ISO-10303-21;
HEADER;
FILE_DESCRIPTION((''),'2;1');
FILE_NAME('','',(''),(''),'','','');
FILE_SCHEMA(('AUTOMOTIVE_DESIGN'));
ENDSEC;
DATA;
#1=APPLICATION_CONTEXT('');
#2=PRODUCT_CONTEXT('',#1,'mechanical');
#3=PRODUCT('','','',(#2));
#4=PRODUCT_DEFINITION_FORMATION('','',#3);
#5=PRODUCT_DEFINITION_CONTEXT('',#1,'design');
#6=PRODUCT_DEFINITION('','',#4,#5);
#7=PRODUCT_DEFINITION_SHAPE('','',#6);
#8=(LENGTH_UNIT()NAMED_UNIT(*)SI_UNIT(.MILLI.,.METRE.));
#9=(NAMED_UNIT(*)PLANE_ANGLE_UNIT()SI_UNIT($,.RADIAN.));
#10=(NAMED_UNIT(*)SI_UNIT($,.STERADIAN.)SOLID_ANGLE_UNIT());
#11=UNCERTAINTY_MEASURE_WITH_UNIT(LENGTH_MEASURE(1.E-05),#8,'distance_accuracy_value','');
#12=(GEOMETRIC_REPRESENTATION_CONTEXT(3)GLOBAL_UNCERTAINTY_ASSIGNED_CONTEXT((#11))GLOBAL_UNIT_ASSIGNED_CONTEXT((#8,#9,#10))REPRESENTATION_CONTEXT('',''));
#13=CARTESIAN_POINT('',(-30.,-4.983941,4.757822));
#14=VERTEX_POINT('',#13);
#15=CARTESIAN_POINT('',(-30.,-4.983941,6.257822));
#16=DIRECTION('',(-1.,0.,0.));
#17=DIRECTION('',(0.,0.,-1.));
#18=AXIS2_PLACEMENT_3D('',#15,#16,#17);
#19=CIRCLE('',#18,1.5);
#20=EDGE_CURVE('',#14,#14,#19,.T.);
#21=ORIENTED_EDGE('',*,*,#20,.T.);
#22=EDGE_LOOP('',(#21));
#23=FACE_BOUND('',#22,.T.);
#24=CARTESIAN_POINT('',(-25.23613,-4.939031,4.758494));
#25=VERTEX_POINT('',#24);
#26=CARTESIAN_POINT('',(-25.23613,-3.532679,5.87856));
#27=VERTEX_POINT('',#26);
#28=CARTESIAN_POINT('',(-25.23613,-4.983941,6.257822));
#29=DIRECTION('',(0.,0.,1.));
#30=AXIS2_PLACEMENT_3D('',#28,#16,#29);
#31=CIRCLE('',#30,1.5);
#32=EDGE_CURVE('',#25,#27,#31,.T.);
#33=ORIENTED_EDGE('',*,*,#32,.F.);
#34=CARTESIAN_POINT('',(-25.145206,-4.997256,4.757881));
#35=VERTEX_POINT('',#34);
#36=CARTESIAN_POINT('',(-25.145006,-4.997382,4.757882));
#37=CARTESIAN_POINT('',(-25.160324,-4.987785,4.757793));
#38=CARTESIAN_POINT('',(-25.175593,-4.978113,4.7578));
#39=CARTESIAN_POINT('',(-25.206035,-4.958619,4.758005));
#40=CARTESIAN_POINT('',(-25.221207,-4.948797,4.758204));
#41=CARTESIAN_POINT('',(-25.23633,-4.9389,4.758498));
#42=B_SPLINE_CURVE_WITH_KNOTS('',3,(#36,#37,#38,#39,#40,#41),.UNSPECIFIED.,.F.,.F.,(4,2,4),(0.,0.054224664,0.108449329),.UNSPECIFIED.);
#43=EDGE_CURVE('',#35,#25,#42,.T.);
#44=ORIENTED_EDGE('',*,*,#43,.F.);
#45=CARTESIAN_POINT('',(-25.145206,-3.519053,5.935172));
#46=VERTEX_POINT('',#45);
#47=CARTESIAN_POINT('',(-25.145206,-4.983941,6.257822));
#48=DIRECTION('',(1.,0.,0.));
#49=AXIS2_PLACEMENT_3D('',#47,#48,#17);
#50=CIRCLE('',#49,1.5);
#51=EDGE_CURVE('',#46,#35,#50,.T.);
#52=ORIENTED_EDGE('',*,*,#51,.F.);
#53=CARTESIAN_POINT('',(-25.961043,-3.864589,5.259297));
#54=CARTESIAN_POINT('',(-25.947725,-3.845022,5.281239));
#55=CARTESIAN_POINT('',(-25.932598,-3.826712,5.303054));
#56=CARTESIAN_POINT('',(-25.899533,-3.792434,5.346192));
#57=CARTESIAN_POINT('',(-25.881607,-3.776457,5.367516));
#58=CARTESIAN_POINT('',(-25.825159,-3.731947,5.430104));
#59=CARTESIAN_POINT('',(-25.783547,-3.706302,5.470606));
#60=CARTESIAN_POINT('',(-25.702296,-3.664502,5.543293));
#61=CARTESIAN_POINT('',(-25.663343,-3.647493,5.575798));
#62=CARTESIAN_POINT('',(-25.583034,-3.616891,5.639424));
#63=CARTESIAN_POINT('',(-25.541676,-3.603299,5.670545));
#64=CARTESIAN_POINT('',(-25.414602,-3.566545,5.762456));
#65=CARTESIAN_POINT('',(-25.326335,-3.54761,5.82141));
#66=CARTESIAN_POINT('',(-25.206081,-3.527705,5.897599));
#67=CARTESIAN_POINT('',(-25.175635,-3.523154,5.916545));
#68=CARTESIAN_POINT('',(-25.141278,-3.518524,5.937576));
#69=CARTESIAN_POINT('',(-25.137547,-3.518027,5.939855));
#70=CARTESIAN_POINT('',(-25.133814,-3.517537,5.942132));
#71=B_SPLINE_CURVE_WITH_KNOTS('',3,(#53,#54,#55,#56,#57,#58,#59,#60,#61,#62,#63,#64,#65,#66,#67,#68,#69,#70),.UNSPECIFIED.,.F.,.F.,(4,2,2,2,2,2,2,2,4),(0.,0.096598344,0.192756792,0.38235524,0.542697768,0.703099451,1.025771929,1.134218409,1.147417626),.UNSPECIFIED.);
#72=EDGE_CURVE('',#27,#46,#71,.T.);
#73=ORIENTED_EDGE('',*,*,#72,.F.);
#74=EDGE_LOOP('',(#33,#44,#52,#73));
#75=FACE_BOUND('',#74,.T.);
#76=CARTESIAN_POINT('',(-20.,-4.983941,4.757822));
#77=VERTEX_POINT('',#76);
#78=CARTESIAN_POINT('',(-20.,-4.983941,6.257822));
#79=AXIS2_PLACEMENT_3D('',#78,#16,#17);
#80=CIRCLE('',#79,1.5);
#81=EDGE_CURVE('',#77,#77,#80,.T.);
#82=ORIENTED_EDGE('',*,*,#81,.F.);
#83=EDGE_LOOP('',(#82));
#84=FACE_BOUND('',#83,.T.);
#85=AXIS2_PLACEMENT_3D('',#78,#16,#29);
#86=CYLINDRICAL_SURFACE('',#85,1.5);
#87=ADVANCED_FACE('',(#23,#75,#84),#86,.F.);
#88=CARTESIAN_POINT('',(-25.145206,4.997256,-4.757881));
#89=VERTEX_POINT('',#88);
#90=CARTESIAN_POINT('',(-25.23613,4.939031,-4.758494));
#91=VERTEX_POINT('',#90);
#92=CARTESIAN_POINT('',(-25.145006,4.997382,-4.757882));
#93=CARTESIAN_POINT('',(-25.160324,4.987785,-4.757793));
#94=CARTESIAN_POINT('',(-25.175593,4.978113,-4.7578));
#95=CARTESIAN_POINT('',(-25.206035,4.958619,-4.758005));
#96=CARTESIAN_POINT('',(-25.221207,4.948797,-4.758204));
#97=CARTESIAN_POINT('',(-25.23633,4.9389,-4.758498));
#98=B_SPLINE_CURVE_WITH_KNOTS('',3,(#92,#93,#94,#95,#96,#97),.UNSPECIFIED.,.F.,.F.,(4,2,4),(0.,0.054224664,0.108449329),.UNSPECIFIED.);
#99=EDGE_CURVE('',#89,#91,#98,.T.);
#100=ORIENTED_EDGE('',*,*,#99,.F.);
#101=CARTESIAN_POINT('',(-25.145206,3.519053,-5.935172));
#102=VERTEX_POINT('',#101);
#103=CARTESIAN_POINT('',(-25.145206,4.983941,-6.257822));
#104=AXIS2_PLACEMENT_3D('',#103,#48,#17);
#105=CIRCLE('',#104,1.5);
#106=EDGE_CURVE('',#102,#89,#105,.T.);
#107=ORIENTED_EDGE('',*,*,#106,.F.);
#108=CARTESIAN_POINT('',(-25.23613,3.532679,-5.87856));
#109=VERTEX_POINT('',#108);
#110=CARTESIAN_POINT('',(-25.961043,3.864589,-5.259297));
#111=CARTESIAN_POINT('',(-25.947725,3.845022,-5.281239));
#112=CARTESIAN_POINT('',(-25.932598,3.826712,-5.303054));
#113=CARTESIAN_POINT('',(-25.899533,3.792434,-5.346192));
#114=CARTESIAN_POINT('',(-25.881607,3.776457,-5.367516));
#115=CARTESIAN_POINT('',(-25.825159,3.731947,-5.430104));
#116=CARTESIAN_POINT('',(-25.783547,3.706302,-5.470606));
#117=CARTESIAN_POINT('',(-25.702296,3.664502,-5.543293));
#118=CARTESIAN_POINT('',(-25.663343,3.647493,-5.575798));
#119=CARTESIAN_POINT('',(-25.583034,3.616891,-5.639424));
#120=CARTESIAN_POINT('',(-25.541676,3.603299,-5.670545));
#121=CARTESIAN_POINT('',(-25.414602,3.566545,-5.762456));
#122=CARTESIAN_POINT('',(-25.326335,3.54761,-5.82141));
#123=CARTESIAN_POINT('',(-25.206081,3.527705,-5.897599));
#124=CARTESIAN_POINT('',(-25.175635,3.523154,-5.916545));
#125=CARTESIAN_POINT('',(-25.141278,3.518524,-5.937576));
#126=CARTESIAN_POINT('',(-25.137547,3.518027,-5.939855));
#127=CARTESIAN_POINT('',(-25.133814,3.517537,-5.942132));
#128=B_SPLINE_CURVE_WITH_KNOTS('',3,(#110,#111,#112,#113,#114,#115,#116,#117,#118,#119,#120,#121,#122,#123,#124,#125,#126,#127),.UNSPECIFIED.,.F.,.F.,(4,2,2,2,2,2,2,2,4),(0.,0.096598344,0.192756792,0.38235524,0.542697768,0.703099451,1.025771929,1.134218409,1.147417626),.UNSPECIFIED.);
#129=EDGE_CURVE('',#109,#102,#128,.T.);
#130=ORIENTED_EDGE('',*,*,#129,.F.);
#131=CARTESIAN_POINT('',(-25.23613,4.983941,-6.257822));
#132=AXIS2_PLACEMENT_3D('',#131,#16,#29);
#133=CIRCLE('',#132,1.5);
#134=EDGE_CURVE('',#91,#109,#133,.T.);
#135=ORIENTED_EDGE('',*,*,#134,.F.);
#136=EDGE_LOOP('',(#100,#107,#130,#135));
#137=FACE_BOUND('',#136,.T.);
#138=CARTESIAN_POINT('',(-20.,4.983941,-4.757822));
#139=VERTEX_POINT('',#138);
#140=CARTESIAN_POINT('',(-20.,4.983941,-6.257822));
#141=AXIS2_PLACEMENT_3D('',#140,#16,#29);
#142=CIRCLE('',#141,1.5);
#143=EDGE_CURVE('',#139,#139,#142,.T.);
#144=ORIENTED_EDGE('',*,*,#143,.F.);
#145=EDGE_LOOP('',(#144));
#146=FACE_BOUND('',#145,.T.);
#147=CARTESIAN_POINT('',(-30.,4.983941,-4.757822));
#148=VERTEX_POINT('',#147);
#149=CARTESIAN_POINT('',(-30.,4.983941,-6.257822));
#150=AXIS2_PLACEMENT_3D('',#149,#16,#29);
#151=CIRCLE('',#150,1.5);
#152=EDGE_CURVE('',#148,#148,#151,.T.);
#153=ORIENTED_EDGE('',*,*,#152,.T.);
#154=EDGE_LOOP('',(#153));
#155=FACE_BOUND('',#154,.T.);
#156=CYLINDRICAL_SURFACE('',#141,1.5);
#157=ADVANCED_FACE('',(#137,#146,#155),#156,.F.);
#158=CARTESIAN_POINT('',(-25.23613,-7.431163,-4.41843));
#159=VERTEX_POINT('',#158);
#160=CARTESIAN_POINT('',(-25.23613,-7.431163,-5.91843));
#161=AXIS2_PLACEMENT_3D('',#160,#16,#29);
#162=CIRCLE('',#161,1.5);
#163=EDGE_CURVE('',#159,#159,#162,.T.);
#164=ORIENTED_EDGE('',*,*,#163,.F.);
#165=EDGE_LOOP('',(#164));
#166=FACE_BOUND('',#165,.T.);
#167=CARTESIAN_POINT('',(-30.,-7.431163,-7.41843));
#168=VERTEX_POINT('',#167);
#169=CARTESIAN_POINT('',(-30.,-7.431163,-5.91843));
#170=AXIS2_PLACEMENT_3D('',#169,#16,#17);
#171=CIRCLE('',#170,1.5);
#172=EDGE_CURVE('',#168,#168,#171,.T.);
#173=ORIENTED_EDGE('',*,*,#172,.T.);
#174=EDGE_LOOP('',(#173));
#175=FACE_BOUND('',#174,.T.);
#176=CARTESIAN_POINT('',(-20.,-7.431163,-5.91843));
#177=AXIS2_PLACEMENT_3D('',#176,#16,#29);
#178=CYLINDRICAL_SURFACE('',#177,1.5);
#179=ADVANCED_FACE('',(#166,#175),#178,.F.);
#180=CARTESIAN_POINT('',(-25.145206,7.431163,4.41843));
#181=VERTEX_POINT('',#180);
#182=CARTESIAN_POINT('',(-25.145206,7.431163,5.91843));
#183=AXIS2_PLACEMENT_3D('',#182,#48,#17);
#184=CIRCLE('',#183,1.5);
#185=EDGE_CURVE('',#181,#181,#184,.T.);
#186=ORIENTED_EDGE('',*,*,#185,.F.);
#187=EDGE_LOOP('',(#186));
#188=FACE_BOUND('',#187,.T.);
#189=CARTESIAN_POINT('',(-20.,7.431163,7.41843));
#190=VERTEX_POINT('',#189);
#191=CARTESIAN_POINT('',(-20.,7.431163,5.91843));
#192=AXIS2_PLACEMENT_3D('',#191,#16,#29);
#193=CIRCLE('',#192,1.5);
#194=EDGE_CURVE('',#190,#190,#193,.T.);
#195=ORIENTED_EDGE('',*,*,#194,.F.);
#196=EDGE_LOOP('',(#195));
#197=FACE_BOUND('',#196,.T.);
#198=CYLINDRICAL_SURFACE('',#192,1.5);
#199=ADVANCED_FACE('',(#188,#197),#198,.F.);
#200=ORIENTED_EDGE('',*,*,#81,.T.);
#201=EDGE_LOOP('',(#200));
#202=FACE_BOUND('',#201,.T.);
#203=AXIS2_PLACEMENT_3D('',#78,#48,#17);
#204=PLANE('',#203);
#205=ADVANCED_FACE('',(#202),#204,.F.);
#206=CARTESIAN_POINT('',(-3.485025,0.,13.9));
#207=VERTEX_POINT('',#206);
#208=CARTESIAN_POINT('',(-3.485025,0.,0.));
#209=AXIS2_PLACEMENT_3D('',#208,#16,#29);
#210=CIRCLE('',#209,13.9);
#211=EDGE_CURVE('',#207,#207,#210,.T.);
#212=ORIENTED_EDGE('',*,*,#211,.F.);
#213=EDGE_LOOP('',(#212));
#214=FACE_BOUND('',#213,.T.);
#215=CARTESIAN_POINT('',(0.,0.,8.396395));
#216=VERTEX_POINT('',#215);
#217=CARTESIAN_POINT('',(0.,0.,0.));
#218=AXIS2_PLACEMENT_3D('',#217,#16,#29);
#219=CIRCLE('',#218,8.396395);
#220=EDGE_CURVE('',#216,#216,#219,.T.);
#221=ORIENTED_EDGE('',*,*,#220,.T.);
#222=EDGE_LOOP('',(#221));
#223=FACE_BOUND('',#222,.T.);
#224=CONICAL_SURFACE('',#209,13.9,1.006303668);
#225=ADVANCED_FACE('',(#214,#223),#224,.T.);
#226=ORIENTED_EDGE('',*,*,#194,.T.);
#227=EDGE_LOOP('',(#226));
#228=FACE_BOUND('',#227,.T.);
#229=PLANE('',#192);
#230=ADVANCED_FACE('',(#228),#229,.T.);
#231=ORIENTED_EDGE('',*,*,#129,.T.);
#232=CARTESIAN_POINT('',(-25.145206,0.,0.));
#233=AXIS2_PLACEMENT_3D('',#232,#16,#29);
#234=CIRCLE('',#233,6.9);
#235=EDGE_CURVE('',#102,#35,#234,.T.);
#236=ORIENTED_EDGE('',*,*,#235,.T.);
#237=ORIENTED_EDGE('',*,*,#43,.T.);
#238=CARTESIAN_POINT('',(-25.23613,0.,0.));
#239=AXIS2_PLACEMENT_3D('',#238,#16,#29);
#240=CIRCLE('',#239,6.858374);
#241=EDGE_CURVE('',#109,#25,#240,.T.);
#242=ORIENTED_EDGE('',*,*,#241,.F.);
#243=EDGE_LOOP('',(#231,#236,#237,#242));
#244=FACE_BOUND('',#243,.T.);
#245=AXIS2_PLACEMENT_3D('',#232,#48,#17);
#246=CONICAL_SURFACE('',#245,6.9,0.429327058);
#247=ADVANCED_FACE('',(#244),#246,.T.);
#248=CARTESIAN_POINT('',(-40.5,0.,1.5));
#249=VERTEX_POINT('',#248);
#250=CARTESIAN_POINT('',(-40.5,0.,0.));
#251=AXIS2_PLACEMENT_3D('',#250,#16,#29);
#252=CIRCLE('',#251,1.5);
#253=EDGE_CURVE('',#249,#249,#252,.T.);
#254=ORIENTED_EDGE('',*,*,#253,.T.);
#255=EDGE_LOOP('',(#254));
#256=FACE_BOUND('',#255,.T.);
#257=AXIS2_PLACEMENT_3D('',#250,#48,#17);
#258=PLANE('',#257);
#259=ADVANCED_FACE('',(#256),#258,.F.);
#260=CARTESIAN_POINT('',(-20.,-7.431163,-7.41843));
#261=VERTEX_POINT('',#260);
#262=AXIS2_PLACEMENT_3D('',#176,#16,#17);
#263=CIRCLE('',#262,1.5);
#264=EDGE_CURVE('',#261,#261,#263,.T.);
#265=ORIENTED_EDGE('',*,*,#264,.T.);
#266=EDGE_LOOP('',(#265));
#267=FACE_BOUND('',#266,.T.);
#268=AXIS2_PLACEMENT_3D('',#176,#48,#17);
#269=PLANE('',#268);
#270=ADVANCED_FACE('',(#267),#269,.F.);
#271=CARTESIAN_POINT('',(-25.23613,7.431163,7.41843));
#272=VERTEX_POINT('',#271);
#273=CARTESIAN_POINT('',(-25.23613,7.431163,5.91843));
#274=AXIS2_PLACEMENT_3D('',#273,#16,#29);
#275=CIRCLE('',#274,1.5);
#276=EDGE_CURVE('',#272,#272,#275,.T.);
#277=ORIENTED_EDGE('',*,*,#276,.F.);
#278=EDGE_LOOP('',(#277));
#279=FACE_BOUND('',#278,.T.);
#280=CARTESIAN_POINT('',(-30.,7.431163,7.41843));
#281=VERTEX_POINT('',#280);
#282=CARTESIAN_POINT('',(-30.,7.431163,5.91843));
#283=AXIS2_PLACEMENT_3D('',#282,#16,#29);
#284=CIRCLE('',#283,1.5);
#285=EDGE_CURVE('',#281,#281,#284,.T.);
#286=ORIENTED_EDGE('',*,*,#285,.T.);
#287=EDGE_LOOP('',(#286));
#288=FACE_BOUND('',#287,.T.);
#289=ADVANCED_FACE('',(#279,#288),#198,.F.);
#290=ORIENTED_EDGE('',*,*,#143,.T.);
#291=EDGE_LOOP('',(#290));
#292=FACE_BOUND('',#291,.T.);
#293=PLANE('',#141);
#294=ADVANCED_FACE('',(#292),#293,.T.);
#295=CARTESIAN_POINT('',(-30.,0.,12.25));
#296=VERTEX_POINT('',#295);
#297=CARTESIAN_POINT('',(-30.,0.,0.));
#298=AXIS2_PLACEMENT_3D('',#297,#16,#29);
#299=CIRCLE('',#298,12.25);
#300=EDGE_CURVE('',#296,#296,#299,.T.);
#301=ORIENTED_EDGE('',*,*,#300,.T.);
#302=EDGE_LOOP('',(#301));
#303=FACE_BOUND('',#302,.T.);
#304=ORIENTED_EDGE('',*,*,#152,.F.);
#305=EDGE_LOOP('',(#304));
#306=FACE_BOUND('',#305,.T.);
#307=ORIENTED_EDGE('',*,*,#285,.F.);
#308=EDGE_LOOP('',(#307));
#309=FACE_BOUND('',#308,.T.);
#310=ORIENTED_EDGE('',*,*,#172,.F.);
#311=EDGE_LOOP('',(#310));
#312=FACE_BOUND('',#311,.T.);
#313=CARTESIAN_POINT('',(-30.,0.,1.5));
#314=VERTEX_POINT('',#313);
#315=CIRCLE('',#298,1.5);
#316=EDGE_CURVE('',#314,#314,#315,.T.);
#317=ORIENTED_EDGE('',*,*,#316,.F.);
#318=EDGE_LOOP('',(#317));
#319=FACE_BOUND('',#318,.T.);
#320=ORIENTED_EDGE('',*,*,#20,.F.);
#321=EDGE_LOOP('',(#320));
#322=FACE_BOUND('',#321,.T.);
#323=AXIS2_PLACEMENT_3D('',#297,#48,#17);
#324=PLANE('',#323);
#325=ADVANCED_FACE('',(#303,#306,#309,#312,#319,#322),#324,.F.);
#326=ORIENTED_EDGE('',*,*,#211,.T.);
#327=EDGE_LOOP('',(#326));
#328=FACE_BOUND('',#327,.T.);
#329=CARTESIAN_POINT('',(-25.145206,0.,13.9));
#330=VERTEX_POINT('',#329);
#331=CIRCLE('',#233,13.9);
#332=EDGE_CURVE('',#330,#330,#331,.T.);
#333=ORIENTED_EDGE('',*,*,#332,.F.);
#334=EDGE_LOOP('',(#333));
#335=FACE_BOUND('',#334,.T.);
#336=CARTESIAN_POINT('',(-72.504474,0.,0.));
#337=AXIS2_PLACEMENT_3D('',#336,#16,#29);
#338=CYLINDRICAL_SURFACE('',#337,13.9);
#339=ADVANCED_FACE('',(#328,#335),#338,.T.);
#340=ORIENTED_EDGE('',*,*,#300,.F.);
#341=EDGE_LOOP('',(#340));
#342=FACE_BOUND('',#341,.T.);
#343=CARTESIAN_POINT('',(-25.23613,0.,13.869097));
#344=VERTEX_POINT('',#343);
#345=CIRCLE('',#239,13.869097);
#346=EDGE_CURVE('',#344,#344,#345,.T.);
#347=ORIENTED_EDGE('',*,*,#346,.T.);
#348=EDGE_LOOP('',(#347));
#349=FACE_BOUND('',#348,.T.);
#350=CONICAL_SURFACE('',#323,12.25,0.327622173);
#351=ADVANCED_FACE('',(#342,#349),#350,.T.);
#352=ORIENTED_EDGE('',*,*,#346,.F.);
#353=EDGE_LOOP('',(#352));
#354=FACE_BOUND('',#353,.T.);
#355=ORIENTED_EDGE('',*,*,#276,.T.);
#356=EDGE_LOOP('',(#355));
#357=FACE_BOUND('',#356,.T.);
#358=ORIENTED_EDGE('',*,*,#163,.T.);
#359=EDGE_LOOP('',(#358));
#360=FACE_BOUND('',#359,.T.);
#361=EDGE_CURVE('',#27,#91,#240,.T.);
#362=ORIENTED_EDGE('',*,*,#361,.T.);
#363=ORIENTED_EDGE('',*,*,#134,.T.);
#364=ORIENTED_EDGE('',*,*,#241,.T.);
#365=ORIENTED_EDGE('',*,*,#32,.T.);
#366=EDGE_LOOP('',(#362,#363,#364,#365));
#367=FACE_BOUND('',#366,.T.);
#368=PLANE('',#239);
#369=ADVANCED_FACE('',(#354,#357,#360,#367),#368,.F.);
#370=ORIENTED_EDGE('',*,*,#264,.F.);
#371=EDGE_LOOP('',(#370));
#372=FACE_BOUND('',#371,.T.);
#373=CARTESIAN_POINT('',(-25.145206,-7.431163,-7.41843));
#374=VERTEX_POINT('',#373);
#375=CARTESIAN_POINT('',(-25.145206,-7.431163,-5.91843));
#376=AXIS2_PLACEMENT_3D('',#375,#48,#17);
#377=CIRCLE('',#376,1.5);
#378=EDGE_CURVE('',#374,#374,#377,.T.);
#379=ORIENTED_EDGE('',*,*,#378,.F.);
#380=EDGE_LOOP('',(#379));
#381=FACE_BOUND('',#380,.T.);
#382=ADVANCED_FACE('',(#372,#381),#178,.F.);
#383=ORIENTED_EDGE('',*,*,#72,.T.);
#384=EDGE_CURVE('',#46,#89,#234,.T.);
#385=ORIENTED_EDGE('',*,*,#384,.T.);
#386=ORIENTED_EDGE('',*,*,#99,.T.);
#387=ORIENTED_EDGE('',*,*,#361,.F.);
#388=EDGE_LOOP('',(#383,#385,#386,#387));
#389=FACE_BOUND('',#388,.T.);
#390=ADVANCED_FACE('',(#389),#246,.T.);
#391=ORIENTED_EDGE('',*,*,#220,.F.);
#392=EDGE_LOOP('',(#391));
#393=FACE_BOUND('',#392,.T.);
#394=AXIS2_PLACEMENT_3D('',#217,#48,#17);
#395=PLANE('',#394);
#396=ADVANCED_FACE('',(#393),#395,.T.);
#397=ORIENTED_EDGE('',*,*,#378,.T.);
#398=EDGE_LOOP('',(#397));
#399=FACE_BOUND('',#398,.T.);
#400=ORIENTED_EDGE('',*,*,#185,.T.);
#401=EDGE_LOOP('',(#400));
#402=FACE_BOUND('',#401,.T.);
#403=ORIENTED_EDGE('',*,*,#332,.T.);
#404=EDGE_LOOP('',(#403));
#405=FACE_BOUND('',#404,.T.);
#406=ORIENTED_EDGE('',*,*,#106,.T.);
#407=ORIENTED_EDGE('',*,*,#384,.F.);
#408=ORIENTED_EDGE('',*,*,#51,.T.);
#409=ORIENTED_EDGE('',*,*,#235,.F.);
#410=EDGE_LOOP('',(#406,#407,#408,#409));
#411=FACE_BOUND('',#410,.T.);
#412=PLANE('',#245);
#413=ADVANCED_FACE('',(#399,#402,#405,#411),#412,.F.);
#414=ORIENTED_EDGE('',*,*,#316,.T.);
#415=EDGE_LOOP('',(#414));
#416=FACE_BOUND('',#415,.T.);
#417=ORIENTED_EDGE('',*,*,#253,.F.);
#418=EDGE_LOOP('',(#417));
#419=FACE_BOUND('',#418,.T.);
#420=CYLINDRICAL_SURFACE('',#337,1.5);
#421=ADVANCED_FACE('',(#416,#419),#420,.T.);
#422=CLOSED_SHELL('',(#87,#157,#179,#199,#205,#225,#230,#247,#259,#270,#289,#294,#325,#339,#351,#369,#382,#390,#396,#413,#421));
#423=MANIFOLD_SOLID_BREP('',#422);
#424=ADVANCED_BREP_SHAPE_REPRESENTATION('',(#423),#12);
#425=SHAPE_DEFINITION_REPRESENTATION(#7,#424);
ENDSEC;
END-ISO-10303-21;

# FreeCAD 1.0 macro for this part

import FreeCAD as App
import Part
import Sketcher
from FreeCAD import Vector


def add_polygon(sketch, points):
    """Adds a closed chain of lines whose ends are joined by coincident constraints."""
    first, n = sketch.GeometryCount, len(points)
    for a, b in zip(points, points[1:] + points[:1]):
        sketch.addGeometry(Part.LineSegment(App.Vector(*a, 0), App.Vector(*b, 0)), False)
    for i in range(n):
        sketch.addConstraint(Sketcher.Constraint("Coincident", first + i, 2, first + (i + 1) % n, 1))

doc = App.newDocument("Part")
body = doc.addObject("PartDesign::Body", "Body")

sketch1 = body.newObject("Sketcher::SketchObject", "Sketch")
sketch1.AttachmentSupport = (doc.getObject("XY_Plane"), [""])
sketch1.MapMode = "FlatFace"
add_polygon(sketch1, [(-25.24, 13.87), (-30, 12.25), (-30, 1.5), (-40.5, 1.5), (-40.5, 0), (0, 0), (0, 8.4), (-3.49, 13.9), (-25.15, 13.9), (-25.15, 6.9), (-25.24, 6.86)])
sketch1.addConstraint([
    Sketcher.Constraint("Vertical", 1),
    Sketcher.Constraint("Horizontal", 2),
    Sketcher.Constraint("Vertical", 3),
    Sketcher.Constraint("Horizontal", 4),
    Sketcher.Constraint("Vertical", 5),
    Sketcher.Constraint("Horizontal", 7),
    Sketcher.Constraint("Vertical", 8),
    Sketcher.Constraint("Vertical", 10),
    Sketcher.Constraint("Coincident", 4, 2, -1, 1),
    Sketcher.Constraint("DistanceY", 8, 2, 8, 1, 7.0),
    Sketcher.Constraint("DistanceX", 2, 2, 2, 1, 10.5),
    Sketcher.Constraint("DistanceX", 4, 1, 4, 2, 40.5),
    Sketcher.Constraint("DistanceY", 3, 2, 3, 1, 1.5),
    Sketcher.Constraint("Distance", 9, 0.1),
    Sketcher.Constraint("DistanceY", 1, 2, 1, 1, 10.75),
    Sketcher.Constraint("DistanceY", -1, 1, 6, 2, 13.9),
    Sketcher.Constraint("DistanceX", 7, 2, 7, 1, 21.660181),
    Sketcher.Constraint("Distance", 6, 6.514221),
    Sketcher.Constraint("DistanceY", 5, 1, 5, 2, 8.396395),
    Sketcher.Constraint("DistanceY", 10, 1, 10, 2, 7.010723),
    Sketcher.Constraint("DistanceX", 9, 2, -1, 1, 25.23613),
])
revolution = body.newObject("PartDesign::Revolution", "Revolution")
revolution.Profile = sketch1
revolution.ReferenceAxis = (sketch1, ["H_Axis"])
revolution.Angle = 360

sketch2 = body.newObject("Sketcher::SketchObject", "Sketch001")
sketch2.AttachmentSupport = (doc.getObject("YZ_Plane"), [""])
sketch2.MapMode = "FlatFace"
sketch2.AttachmentOffset = App.Placement(Vector(0, 0, -30), App.Rotation())
sketch2.addGeometry([
    Part.Circle(Vector(7.4, 5.9, 0), Vector(0, 0, 1), 1.5),
    Part.Circle(Vector(5, -6.3, 0), Vector(0, 0, 1), 1.5),
    Part.Circle(Vector(-5, 6.3, 0), Vector(0, 0, 1), 1.5),
    Part.Circle(Vector(-7.4, -5.9, 0), Vector(0, 0, 1), 1.5),
], False)
sketch2.addConstraint([
    Sketcher.Constraint("Equal", 0, 1),
    Sketcher.Constraint("Equal", 1, 2),
    Sketcher.Constraint("Equal", 2, 3),
    Sketcher.Constraint("Symmetric", 1, 3, 2, 3, -1, 1),
    Sketcher.Constraint("Symmetric", 0, 3, 3, 3, -1, 1),
    Sketcher.Constraint("Diameter", 0, 3.0),
    Sketcher.Constraint("DistanceY", -1, 1, 0, 3, 5.91843),
    Sketcher.Constraint("DistanceX", -1, 1, 1, 3, 4.983941),
    Sketcher.Constraint("DistanceY", 1, 3, -1, 1, 6.257822),
    Sketcher.Constraint("DistanceX", -1, 1, 0, 3, 7.431163),
])
pocket1 = body.newObject("PartDesign::Pocket", "Pocket")
pocket1.Profile = sketch2
pocket1.Length = 10
pocket1.Reversed = True

doc.recompute()
